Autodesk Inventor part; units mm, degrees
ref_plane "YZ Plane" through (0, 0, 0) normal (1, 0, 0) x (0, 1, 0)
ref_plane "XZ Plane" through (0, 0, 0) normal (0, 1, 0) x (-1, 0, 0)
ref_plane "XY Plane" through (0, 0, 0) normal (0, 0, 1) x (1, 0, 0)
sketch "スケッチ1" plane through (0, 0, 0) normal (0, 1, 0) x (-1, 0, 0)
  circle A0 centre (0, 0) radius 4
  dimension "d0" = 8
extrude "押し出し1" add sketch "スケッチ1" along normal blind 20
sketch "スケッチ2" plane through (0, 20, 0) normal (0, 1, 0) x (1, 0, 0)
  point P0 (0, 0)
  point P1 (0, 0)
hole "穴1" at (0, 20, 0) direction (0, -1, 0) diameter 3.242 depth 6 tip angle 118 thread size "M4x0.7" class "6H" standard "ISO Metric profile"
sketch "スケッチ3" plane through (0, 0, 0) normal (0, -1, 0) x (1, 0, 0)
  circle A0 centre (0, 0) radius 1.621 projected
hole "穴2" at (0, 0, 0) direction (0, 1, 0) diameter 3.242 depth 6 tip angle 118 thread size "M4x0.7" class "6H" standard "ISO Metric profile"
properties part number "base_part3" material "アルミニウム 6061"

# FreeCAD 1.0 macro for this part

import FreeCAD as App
import Part
import Sketcher

V = App.Vector

doc = App.newDocument("Part")
body = doc.addObject("PartDesign::Body", "Body")

# Sketch on XZ plane
sketch1 = doc.addObject("Sketcher::SketchObject", "Sketch")
body.addObject(sketch1)
sketch1.AttachmentSupport = (doc.XZ_Plane, [""])
sketch1.MapMode = "FlatFace"
sketch1.addGeometry(Part.Circle(V(0, 0, 0), V(0, 0, 1), 4), False)
sketch1.addConstraint([
    Sketcher.Constraint("Coincident", 0, 3, -1, 1),
    Sketcher.Constraint("Diameter", 0, 8.0),
])
pad1 = doc.addObject("PartDesign::Pad", "Pad")
body.addObject(pad1)
pad1.Profile = sketch1
pad1.Length = 20
pad1.Reversed = True

# Sketch on XZ plane
sketch2 = doc.addObject("Sketcher::SketchObject", "Sketch001")
body.addObject(sketch2)
sketch2.AttachmentSupport = (doc.XZ_Plane, [""])
sketch2.MapMode = "FlatFace"
sketch2.AttachmentOffset = App.Placement(V(0, 0, -20), App.Rotation())
sketch2.addGeometry(Part.Circle(V(0, 0, 0), V(0, 0, 1), 1.6), False)
sketch2.addConstraint([
    Sketcher.Constraint("Coincident", 0, 3, -1, 1),
    Sketcher.Constraint("Diameter", 0, 3.242),
])
doc.recompute()
hole = doc.addObject("PartDesign::Hole", "Hole")
body.addObject(hole)
hole.Profile = sketch2
hole.ThreadType = "None"
hole.Diameter = 3.242
hole.DepthType = "Dimension"
hole.Depth = 6
hole.DrillPoint = "Angled"
hole.DrillPointAngle = 118
hole.Reversed = True

# Sketch on XZ plane
sketch3 = doc.addObject("Sketcher::SketchObject", "Sketch002")
body.addObject(sketch3)
sketch3.AttachmentSupport = (doc.XZ_Plane, [""])
sketch3.MapMode = "FlatFace"
sketch3.addGeometry(Part.Circle(V(0, 0, 0), V(0, 0, 1), 1.6), False)
sketch3.addConstraint([
    Sketcher.Constraint("Coincident", 0, 3, -1, 1),
    Sketcher.Constraint("Diameter", 0, 3.242),
])
doc.recompute()
hole2 = doc.addObject("PartDesign::Hole", "Hole001")
body.addObject(hole2)
hole2.Profile = sketch3
hole2.ThreadType = "None"
hole2.Diameter = 3.242
hole2.DepthType = "Dimension"
hole2.Depth = 6
hole2.DrillPoint = "Angled"
hole2.DrillPointAngle = 118

doc.recompute()
